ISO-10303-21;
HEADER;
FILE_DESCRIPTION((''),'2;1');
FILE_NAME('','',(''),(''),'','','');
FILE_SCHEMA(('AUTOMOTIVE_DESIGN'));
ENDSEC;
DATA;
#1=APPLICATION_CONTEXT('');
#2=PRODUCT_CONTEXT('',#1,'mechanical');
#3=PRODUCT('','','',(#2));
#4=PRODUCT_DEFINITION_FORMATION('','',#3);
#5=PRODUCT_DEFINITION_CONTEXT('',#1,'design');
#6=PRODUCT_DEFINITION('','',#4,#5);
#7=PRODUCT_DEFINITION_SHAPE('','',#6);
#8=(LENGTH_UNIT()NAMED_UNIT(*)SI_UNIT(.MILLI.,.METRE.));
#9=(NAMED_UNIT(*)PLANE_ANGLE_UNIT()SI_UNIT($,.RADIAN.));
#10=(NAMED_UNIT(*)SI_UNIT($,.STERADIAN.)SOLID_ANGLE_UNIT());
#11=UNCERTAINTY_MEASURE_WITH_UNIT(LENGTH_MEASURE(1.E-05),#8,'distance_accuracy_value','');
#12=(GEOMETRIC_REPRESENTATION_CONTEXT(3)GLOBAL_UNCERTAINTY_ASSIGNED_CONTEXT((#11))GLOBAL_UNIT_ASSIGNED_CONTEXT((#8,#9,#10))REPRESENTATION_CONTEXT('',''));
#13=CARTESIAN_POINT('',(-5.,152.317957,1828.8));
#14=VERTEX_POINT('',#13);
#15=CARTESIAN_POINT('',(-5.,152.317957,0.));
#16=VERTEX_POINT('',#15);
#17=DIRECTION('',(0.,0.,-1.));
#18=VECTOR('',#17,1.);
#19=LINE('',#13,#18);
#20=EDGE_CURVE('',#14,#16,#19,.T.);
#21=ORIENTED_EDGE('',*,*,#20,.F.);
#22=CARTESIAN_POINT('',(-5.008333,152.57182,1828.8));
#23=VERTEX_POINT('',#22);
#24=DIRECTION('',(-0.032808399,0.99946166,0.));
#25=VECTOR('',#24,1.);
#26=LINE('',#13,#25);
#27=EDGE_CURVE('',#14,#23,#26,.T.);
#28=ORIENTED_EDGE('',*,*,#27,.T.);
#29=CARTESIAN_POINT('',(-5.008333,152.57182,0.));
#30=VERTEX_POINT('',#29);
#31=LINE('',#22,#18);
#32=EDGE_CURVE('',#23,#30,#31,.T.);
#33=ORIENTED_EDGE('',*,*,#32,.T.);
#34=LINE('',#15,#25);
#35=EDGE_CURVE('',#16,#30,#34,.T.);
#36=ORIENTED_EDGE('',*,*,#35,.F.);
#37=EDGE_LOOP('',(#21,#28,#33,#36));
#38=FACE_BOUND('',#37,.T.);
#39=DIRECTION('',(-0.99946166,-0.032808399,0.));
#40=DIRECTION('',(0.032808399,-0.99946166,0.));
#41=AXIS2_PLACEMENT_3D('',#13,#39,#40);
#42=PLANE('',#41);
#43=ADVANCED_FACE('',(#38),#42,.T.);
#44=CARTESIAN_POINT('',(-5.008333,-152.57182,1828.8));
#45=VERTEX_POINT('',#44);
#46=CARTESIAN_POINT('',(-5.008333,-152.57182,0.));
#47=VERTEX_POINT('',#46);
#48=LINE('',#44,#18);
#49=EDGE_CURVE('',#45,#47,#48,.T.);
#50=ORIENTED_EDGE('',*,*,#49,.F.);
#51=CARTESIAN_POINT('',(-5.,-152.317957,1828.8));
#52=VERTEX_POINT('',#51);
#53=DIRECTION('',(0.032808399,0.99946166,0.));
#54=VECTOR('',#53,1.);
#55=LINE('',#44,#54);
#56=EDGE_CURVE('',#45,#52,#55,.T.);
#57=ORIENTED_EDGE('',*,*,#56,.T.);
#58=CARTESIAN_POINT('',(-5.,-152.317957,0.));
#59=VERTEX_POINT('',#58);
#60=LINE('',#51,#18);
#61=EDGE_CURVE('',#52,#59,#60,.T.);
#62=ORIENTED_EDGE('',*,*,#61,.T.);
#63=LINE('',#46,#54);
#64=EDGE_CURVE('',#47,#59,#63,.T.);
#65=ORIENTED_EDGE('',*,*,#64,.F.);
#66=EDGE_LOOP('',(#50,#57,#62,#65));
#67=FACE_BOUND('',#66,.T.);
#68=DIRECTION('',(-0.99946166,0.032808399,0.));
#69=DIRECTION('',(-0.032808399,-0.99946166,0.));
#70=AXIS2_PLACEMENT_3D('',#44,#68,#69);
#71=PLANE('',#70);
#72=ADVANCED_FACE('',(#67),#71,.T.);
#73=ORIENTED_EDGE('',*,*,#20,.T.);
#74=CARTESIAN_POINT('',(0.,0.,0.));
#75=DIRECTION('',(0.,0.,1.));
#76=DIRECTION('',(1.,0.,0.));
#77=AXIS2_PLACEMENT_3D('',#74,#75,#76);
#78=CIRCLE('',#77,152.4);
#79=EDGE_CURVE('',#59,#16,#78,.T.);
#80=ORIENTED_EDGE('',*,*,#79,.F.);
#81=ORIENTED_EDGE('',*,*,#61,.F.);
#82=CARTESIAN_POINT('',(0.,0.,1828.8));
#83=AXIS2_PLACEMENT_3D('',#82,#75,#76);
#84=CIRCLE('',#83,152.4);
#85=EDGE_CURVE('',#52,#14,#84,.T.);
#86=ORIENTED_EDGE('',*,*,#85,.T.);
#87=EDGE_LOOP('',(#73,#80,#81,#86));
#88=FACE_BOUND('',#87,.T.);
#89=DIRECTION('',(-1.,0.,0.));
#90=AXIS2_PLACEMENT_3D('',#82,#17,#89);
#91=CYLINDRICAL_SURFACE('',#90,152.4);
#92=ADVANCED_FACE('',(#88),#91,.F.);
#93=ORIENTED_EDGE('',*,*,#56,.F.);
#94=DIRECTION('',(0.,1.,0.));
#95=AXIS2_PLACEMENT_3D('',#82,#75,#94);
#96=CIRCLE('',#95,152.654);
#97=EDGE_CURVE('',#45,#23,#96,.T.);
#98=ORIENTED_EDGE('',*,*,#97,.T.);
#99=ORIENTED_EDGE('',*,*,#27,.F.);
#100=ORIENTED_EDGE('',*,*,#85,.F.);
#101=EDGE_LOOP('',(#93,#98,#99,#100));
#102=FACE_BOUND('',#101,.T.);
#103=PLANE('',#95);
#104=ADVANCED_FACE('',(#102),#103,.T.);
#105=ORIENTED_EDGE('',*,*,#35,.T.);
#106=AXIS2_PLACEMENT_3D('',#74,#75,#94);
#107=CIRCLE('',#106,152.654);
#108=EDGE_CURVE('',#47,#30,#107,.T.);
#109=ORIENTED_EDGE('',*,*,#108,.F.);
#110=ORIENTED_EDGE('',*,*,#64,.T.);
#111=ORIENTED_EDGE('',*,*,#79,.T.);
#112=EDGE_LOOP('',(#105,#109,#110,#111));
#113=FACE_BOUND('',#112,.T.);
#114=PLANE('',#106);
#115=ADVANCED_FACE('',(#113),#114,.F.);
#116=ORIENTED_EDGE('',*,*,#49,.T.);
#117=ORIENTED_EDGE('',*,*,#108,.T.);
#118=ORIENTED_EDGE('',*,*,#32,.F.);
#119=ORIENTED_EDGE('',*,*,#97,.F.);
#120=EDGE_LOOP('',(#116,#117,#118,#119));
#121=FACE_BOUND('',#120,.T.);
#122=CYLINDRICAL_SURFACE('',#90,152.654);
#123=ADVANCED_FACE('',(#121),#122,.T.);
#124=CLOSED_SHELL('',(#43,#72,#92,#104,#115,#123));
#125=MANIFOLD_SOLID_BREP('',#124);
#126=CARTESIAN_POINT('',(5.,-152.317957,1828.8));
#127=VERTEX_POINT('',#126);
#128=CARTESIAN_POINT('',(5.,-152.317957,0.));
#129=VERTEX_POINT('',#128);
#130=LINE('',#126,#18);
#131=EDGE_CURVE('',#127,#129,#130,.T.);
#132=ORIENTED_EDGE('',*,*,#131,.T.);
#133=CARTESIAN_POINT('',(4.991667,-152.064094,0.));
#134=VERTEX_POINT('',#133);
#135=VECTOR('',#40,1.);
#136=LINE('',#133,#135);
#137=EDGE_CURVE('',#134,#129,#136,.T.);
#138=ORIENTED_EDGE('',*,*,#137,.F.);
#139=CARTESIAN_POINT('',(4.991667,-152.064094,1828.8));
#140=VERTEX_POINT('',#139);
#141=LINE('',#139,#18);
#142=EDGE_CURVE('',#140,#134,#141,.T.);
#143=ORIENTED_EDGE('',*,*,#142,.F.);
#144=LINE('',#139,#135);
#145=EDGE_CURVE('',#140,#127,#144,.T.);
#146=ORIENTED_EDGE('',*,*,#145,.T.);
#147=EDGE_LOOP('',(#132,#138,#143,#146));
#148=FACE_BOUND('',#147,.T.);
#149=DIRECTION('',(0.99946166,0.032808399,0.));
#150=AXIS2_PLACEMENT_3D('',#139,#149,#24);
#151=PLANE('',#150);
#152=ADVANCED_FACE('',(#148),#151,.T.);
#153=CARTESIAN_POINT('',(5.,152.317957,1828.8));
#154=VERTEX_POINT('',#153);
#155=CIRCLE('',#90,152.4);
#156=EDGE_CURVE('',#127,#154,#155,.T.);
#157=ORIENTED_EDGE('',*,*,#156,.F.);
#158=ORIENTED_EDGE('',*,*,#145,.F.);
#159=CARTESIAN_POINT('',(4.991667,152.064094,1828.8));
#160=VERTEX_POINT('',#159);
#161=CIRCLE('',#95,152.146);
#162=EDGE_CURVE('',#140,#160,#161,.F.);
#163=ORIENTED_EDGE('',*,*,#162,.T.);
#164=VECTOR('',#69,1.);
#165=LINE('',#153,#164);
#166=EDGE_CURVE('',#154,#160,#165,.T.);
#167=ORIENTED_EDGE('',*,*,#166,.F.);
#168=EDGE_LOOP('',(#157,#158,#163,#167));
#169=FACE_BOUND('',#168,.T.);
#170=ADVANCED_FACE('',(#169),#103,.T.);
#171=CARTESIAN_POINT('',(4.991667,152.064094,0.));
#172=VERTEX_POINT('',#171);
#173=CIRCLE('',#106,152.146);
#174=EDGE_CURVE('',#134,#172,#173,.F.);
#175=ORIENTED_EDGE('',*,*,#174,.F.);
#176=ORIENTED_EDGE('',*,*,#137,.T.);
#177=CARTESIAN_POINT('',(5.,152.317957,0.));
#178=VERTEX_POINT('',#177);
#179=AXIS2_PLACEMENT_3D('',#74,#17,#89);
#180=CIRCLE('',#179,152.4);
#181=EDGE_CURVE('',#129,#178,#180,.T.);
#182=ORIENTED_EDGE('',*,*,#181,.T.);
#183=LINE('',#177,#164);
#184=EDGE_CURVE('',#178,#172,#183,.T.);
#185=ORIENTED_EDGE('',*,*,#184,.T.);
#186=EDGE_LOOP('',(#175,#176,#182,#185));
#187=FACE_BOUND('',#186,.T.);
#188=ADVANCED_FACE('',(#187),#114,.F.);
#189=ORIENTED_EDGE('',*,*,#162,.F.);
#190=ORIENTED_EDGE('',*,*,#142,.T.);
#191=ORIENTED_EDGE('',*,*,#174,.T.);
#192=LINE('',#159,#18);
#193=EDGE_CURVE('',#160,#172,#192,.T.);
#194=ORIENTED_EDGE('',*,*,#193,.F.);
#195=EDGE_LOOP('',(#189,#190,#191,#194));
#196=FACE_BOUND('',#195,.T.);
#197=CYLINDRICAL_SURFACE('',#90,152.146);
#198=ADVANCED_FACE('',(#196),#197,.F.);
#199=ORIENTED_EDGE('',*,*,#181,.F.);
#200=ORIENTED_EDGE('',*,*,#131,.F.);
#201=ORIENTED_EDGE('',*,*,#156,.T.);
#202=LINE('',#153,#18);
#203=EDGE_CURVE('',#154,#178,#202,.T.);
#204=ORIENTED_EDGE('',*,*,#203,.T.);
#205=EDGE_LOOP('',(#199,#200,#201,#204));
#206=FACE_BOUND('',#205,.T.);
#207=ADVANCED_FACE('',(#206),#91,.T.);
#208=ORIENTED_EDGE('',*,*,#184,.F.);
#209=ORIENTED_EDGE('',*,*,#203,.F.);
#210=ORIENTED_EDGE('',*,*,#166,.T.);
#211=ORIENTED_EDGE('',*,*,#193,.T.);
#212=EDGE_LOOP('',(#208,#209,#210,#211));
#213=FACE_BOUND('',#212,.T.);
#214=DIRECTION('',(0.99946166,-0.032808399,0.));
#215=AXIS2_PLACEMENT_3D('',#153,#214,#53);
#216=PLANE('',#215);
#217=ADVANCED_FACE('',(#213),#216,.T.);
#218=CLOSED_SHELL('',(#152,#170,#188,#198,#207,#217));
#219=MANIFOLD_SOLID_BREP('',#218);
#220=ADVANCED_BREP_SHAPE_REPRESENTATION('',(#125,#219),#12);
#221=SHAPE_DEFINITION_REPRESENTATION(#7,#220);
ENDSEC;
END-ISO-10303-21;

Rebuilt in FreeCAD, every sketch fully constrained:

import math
import FreeCAD as App
import Part
import Sketcher

V = App.Vector
Q = App.Units.Quantity

doc = App.newDocument("Part")
params = doc.addObject("Spreadsheet::Sheet", "Params")
for row, (alias, value) in enumerate([
    ("sketch1_radius", "6 in"),
    ("sketch1_radius2", "5.99 in"),
    ("pad1_length", "72 in"),
    ("sketch2_radius", "6 in"),
    ("sketch2_radius2", "6.01 in"),
    ("pad2_length", "72 in"),
], start=1):
    params.set(f"A{row}", alias)
    params.set(f"B{row}", "=" + value)
    params.setAlias(f"B{row}", alias)

body = doc.addObject("PartDesign::Body", "Body")

# Sketch on XY plane
sketch1 = body.newObject("Sketcher::SketchObject", "Sketch")
sketch1.AttachmentSupport = (doc.getObject("XY_Plane"), [""])
sketch1.MapMode = "FlatFace"
sketch1.addGeometry([
    Part.ArcOfCircle(Part.Circle(V(0, 0, 0), V(0, 0, 1), 152.4), math.radians(88.11988), math.radians(271.88012)),
    Part.LineSegment(V(5, -152.317957, 0), V(4.991667, -152.064094, 0)),
    Part.ArcOfCircle(Part.Circle(V(0, 0, 0), V(0, 0, 1), 152.146), math.radians(88.11988), math.radians(271.88012)),
    Part.LineSegment(V(4.991667, 152.064094, 0), V(5, 152.317957, 0)),
], False)
sketch1.addConstraint([
    Sketcher.Constraint("Coincident", 0, 2, 1, 1),
    Sketcher.Constraint("Coincident", 1, 2, 2, 2),
    Sketcher.Constraint("Coincident", 2, 1, 3, 1),
    Sketcher.Constraint("Coincident", 3, 2, 0, 1),
    Sketcher.Constraint("Coincident", 0, 3, -1, 1),
    Sketcher.Constraint("Coincident", 2, 3, -1, 1),
    Sketcher.Constraint("Vertical", 1, 2, 2, 1),
    Sketcher.Constraint("Vertical", 0, 2, 3, 2),
    Sketcher.Constraint("Radius", 0, Q("6 in")),
    Sketcher.Constraint("Radius", 2, Q("5.99 in")),
    Sketcher.Constraint("DistanceX", -1, 1, 0, 2, Q("5 mm")),
    Sketcher.Constraint("DistanceY", 0, 2, 2, 1, Q("304.382051 mm")),
])
sketch1.setExpression("Constraints[8]", "Params.sketch1_radius")
sketch1.setExpression("Constraints[9]", "Params.sketch1_radius2")
pad1 = body.newObject("PartDesign::Pad", "Pad")
pad1.Profile = sketch1
pad1.setExpression("Length", "Params.pad1_length")
body2 = doc.addObject("PartDesign::Body", "Body001")

# Sketch on XY plane
sketch2 = body2.newObject("Sketcher::SketchObject", "Sketch001")
sketch2.AttachmentSupport = (doc.getObject("XY_Plane001"), [""])
sketch2.MapMode = "FlatFace"
sketch2.addGeometry([
    Part.ArcOfCircle(Part.Circle(V(0, 0, 0), V(0, 0, 1), 152.4), math.radians(-91.88012), math.radians(91.88012)),
    Part.LineSegment(V(-5, -152.317957, 0), V(-5.008333, -152.57182, 0)),
    Part.ArcOfCircle(Part.Circle(V(0, 0, 0), V(0, 0, 1), 152.654), math.radians(-91.88012), math.radians(91.88012)),
    Part.LineSegment(V(-5.008333, 152.57182, 0), V(-5, 152.317957, 0)),
], False)
sketch2.addConstraint([
    Sketcher.Constraint("Coincident", 0, 1, 1, 1),
    Sketcher.Constraint("Coincident", 1, 2, 2, 1),
    Sketcher.Constraint("Coincident", 2, 2, 3, 1),
    Sketcher.Constraint("Coincident", 3, 2, 0, 2),
    Sketcher.Constraint("Coincident", 0, 3, -1, 1),
    Sketcher.Constraint("Coincident", 2, 3, -1, 1),
    Sketcher.Constraint("Vertical", 1, 2, 2, 2),
    Sketcher.Constraint("Vertical", 0, 1, 3, 2),
    Sketcher.Constraint("Radius", 0, Q("6 in")),
    Sketcher.Constraint("Radius", 2, Q("6.01 in")),
    Sketcher.Constraint("DistanceX", 0, 1, -1, 1, Q("5 mm")),
    Sketcher.Constraint("DistanceY", 1, 2, -1, 1, Q("152.57182 mm")),
])
sketch2.setExpression("Constraints[8]", "Params.sketch2_radius")
sketch2.setExpression("Constraints[9]", "Params.sketch2_radius2")
pad2 = body2.newObject("PartDesign::Pad", "Pad001")
pad2.Profile = sketch2
pad2.setExpression("Length", "Params.pad2_length")

doc.recompute()
